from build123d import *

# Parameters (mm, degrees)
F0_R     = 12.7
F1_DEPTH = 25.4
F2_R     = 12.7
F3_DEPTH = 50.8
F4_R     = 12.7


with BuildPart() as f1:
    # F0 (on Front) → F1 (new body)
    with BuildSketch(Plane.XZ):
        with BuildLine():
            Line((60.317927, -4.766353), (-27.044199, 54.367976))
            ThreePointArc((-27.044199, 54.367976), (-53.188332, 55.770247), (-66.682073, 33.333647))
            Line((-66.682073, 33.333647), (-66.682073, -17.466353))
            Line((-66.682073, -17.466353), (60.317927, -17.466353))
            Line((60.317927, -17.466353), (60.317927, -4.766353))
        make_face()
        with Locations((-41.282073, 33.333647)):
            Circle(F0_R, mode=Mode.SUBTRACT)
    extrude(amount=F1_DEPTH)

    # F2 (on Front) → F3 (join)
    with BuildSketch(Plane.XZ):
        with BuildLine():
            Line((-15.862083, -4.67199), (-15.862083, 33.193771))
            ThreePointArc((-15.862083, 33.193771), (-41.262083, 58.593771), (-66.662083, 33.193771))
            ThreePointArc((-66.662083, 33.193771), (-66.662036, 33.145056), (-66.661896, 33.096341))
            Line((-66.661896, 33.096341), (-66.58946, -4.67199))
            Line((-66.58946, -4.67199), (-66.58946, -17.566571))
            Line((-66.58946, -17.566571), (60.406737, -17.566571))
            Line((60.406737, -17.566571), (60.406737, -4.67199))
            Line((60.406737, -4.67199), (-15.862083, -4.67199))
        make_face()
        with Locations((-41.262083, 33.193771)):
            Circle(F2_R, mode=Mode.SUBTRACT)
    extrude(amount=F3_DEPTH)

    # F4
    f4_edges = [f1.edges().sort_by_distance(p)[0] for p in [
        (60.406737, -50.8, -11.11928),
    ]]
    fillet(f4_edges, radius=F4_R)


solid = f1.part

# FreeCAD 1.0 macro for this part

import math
import FreeCAD as App
import Part
import Sketcher

V = App.Vector
Q = App.Units.Quantity


def edges_at(feature, points):
    """Names of the edges that pass closest to the given points."""
    edges = feature.Shape.Edges
    near = lambda p: min(range(len(edges)), key=lambda i: edges[i].distToShape(Part.Vertex(*p))[0])
    return sorted({f"Edge{near(p) + 1}" for p in points})

doc = App.newDocument("Part")
body = doc.addObject("PartDesign::Body", "Body")

# Sketch on XZ plane
sketch1 = body.newObject("Sketcher::SketchObject", "Sketch")
sketch1.AttachmentSupport = (doc.getObject("XZ_Plane"), [""])
sketch1.MapMode = "FlatFace"
sketch1.addGeometry([
    Part.LineSegment(V(60.317927, -4.766353, 0), V(-27.044199, 54.367976, 0)),  # 0
    Part.ArcOfCircle(Part.Circle(V(-41.282072, 33.333647, 0), V(0, 0, 1), 25.400001), math.radians(55.906421), math.radians(180)),  # 1
    Part.LineSegment(V(-66.682073, 33.333647, 0), V(-66.682073, -17.466353, 0)),  # 2
    Part.LineSegment(V(-66.682073, -17.466353, 0), V(60.317927, -17.466353, 0)),  # 3
    Part.LineSegment(V(60.317927, -17.466353, 0), V(60.317927, -4.766353, 0)),  # 4
    Part.Circle(V(-41.282073, 33.333647, 0), V(0, 0, 1), 12.7),  # 5
], False)
sketch1.addConstraint([
    Sketcher.Constraint("Tangent", 0, 2, 1, 1),
    Sketcher.Constraint("Tangent", 1, 2, 2, 1),
    Sketcher.Constraint("Coincident", 2, 2, 3, 1),
    Sketcher.Constraint("Coincident", 3, 2, 4, 1),
    Sketcher.Constraint("Coincident", 4, 2, 0, 1),
    Sketcher.Constraint("Vertical", 2),
    Sketcher.Constraint("Horizontal", 3),
    Sketcher.Constraint("Vertical", 4),
    Sketcher.Constraint("Coincident", 5, 3, 1, 3),
    Sketcher.Constraint("Diameter", 5, Q("1 in")),
    Sketcher.Constraint("Radius", 1, Q("1 in")),
    Sketcher.Constraint("DistanceX", 3, 1, 3, 2, Q("5 in")),
    Sketcher.Constraint("DistanceY", 2, 2, 2, 1, Q("2 in")),
    Sketcher.Constraint("DistanceY", 4, 1, 4, 2, Q("0.5 in")),
    Sketcher.Constraint("DistanceX", 0, 2, -1, 1, Q("27.044199 mm")),
    Sketcher.Constraint("DistanceY", -1, 1, 1, 3, Q("33.333647 mm")),
])
pad1 = body.newObject("PartDesign::Pad", "Pad")
pad1.Profile = sketch1
pad1.Length = Q("1 in")

# Sketch on XZ plane
sketch2 = body.newObject("Sketcher::SketchObject", "Sketch001")
sketch2.AttachmentSupport = (doc.getObject("XZ_Plane"), [""])
sketch2.MapMode = "FlatFace"
sketch2.addGeometry([
    Part.LineSegment(V(-15.862083, -4.67199, 0), V(-15.862083, 33.193771, 0)),  # 0
    Part.ArcOfCircle(Part.Circle(V(-41.262083, 33.193771, 0), V(0, 0, 1), 25.4), math.radians(0), math.radians(180)),  # 1
    Part.ArcOfCircle(Part.Circle(V(-41.144164, 33.194033, 0), V(0, 0, 1), 25.517919), math.radians(-179.999412), math.radians(-179.78065)),  # 2
    Part.LineSegment(V(-66.661896, 33.096341, 0), V(-66.58946, -4.67199, 0)),  # 3
    Part.LineSegment(V(-66.58946, -4.67199, 0), V(-66.58946, -17.566571, 0)),  # 4
    Part.LineSegment(V(-66.58946, -17.566571, 0), V(60.406737, -17.566571, 0)),  # 5
    Part.LineSegment(V(60.406737, -17.566571, 0), V(60.406737, -4.67199, 0)),  # 6
    Part.LineSegment(V(60.406737, -4.67199, 0), V(-15.862083, -4.67199, 0)),  # 7
    Part.Circle(V(-41.262083, 33.193771, 0), V(0, 0, 1), 12.7),  # 8
], False)
sketch2.addConstraint([
    Sketcher.Constraint("Tangent", 0, 2, 1, 1),
    Sketcher.Constraint("Coincident", 1, 2, 2, 1),
    Sketcher.Constraint("Coincident", 2, 2, 3, 1),
    Sketcher.Constraint("Coincident", 3, 2, 4, 1),
    Sketcher.Constraint("Coincident", 4, 2, 5, 1),
    Sketcher.Constraint("Coincident", 5, 2, 6, 1),
    Sketcher.Constraint("Coincident", 6, 2, 7, 1),
    Sketcher.Constraint("Coincident", 7, 2, 0, 1),
    Sketcher.Constraint("Vertical", 0),
    Sketcher.Constraint("Vertical", 4),
    Sketcher.Constraint("Horizontal", 5),
    Sketcher.Constraint("Vertical", 6),
    Sketcher.Constraint("Horizontal", 7),
    Sketcher.Constraint("Coincident", 8, 3, 1, 3),
    Sketcher.Constraint("Horizontal", 0, 2, 1, 2),
    Sketcher.Constraint("Horizontal", 3, 2, 6, 2),
    Sketcher.Constraint("Diameter", 8, Q("1 in")),
    Sketcher.Constraint("Radius", 1, Q("1 in")),
    Sketcher.Constraint("Radius", 2, Q("25.517919 mm")),
    Sketcher.Constraint("Distance", 3, Q("37.7684 mm")),
    Sketcher.Constraint("DistanceX", 7, 2, 7, 1, Q("76.26882 mm")),
    Sketcher.Constraint("DistanceY", 0, 1, 0, 2, Q("37.865761 mm")),
    Sketcher.Constraint("DistanceY", 4, 2, 4, 1, Q("12.894581 mm")),
    Sketcher.Constraint("DistanceX", 5, 1, 5, 2, Q("126.996197 mm")),
    Sketcher.Constraint("DistanceY", -1, 1, 1, 3, Q("33.193771 mm")),
    Sketcher.Constraint("DistanceX", 3, 2, -1, 1, Q("66.58946 mm")),
    Sketcher.Constraint("DistanceY", -1, 1, 2, 3, Q("33.194033 mm")),
])
pad2 = body.newObject("PartDesign::Pad", "Pad001")
pad2.Profile = sketch2
pad2.Length = Q("2 in")
doc.recompute()

fillet = body.newObject("PartDesign::Fillet", "Fillet")
fillet.Base = (pad2, edges_at(pad2, [(60.407, -50.8, -11.119)]))
fillet.Radius = Q("0.5 in")

doc.recompute()
